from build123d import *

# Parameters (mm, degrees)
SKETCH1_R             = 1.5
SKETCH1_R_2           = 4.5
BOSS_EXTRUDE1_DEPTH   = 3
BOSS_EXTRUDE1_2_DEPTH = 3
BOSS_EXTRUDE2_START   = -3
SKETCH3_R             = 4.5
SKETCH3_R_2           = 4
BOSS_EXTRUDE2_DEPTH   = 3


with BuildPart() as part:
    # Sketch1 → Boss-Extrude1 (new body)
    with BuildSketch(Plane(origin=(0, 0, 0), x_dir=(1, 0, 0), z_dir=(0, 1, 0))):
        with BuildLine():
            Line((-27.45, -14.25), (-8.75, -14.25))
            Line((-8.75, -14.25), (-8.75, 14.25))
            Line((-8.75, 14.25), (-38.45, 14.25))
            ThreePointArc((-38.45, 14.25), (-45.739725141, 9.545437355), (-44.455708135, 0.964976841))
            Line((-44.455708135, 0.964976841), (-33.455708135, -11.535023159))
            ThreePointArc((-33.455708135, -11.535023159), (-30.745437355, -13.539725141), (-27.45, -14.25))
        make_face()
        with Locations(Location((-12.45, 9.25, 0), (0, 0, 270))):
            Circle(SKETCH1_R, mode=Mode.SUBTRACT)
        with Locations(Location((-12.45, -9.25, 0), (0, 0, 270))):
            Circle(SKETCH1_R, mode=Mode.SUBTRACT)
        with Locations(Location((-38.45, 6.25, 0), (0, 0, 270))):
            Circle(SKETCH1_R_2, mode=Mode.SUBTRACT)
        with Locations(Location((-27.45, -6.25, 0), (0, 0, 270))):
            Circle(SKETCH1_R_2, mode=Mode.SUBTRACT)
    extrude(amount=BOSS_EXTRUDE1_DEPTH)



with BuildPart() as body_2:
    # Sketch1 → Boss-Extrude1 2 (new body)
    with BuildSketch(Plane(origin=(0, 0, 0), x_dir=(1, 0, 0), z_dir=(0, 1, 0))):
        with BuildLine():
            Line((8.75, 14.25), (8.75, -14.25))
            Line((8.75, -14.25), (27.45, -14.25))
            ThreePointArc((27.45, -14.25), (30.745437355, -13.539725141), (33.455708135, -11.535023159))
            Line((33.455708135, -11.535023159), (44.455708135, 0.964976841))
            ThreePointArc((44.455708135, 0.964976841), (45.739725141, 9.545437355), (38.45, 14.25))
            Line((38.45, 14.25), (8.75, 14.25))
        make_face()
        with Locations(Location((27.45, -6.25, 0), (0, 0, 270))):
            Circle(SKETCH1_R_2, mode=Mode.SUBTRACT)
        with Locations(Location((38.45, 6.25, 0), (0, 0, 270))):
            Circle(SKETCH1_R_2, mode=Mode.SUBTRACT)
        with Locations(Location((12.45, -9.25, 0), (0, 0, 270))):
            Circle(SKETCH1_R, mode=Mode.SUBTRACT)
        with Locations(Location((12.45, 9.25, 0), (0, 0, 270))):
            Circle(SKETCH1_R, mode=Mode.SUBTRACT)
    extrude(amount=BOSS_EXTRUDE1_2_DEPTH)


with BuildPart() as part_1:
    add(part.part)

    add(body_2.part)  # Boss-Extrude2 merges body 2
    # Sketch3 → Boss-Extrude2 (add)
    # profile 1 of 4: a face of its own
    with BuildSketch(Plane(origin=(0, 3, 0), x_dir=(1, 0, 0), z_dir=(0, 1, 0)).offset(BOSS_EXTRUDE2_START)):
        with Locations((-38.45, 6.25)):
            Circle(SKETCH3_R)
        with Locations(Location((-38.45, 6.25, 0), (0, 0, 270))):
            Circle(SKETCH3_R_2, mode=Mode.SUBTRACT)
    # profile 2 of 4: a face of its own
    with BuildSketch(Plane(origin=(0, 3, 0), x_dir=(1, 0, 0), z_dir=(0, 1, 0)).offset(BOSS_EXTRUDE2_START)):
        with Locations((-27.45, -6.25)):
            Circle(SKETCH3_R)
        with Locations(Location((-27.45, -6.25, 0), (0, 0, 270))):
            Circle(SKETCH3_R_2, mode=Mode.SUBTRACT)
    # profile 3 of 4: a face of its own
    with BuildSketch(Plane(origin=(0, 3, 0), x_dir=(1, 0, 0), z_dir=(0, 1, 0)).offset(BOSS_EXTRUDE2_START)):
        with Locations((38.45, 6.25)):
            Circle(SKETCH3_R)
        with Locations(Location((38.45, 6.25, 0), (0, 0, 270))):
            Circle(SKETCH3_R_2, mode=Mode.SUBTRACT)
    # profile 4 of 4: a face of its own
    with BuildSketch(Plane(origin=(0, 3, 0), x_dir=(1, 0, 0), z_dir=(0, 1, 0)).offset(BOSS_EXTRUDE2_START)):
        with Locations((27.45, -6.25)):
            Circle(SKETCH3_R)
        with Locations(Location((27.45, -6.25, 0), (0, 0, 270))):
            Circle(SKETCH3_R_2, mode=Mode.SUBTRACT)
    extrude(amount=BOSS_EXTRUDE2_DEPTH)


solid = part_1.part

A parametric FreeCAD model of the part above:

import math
import FreeCAD as App
import Part
import Sketcher

V = App.Vector
Q = App.Units.Quantity

doc = App.newDocument("Part")
body = doc.addObject("PartDesign::Body", "Body")

# Sketch on XZ plane
sketch1 = doc.addObject("Sketcher::SketchObject", "Sketch")
body.addObject(sketch1)
sketch1.AttachmentSupport = (doc.XZ_Plane, [""])
sketch1.MapMode = "FlatFace"
sketch1.addGeometry(Part.LineSegment(V(-27.4, 14.2, 0), V(-8.8, 14.2, 0)), False)
sketch1.addGeometry(Part.LineSegment(V(-8.8, 14.2, 0), V(-8.8, -14.2, 0)), False)
sketch1.addGeometry(Part.LineSegment(V(-8.8, -14.2, 0), V(-38.5, -14.2, 0)), False)
sketch1.addGeometry(Part.ArcOfCircle(Part.Circle(V(-38.4, -6.2, 0), V(0, 0, 1), 8), math.radians(139), math.radians(270)), False)
sketch1.addGeometry(Part.LineSegment(V(-44.5, -1, 0), V(-33.5, 11.5, 0)), False)
sketch1.addGeometry(Part.ArcOfCircle(Part.Circle(V(-27.4, 6.2, 0), V(0, 0, 1), 8), math.radians(90), math.radians(139)), False)
sketch1.addGeometry(Part.Circle(V(-27.4, 6.2, 0), V(0, 0, 1), 4.5), False)
sketch1.addGeometry(Part.Circle(V(-12.4, 9.2, 0), V(0, 0, 1), 1.5), False)
sketch1.addGeometry(Part.Circle(V(-38.5, -6.2, 0), V(0, 0, 1), 4.5), False)
sketch1.addGeometry(Part.Circle(V(-12.4, -9.2, 0), V(0, 0, 1), 1.5), False)
sketch1.addConstraint(Sketcher.Constraint("Coincident", 0, 2, 1, 1))
sketch1.addConstraint(Sketcher.Constraint("Coincident", 1, 2, 2, 1))
sketch1.addConstraint(Sketcher.Constraint("Tangent", 2, 2, 3, 2))
sketch1.addConstraint(Sketcher.Constraint("Tangent", 3, 1, 4, 1))
sketch1.addConstraint(Sketcher.Constraint("Tangent", 4, 2, 5, 2))
sketch1.addConstraint(Sketcher.Constraint("Tangent", 5, 1, 0, 1))
sketch1.addConstraint(Sketcher.Constraint("Horizontal", 0))
sketch1.addConstraint(Sketcher.Constraint("Vertical", 1))
sketch1.addConstraint(Sketcher.Constraint("Horizontal", 2))
sketch1.addConstraint(Sketcher.Constraint("Coincident", 6, 3, 5, 3))
sketch1.addConstraint(Sketcher.Constraint("Coincident", 8, 3, 3, 3))
sketch1.addConstraint(Sketcher.Constraint("Equal", 3, 5))
sketch1.addConstraint(Sketcher.Constraint("Equal", 6, 8))
sketch1.addConstraint(Sketcher.Constraint("Equal", 7, 9))
sketch1.addConstraint(Sketcher.Constraint("Symmetric", 7, 3, 9, 3, -1))
sketch1.addConstraint(Sketcher.Constraint("Diameter", 6, Q("9 mm")))
sketch1.addConstraint(Sketcher.Constraint("Diameter", 7, Q("3 mm")))
sketch1.addConstraint(Sketcher.Constraint("Radius", 3, Q("8 mm")))
sketch1.addConstraint(Sketcher.Constraint("DistanceX", 0, 1, 0, 2, Q("18.7 mm")))
sketch1.addConstraint(Sketcher.Constraint("DistanceX", 2, 2, 2, 1, Q("29.7 mm")))
sketch1.addConstraint(Sketcher.Constraint("DistanceY", 1, 2, 1, 1, Q("28.5 mm")))
sketch1.addConstraint(Sketcher.Constraint("DistanceX", 5, 3, 7, 3, Q("15 mm")))
sketch1.addConstraint(Sketcher.Constraint("DistanceY", 5, 3, 7, 3, Q("3 mm")))
sketch1.addConstraint(Sketcher.Constraint("DistanceY", 9, 3, 3, 3, Q("3 mm")))
sketch1.addConstraint(Sketcher.Constraint("DistanceX", 3, 3, -1, 1, Q("38.45 mm")))
pad1 = doc.addObject("PartDesign::Pad", "Pad")
body.addObject(pad1)
pad1.Profile = sketch1
pad1.Length = 3
pad1.Reversed = True
body2 = doc.addObject("PartDesign::Body", "Body001")

# Sketch on XZ plane
sketch2 = doc.addObject("Sketcher::SketchObject", "Sketch001")
body2.addObject(sketch2)
sketch2.AttachmentSupport = (doc.getObject("XZ_Plane001"), [""])
sketch2.MapMode = "FlatFace"
sketch2.addGeometry(Part.LineSegment(V(8.8, -14.2, 0), V(8.8, 14.2, 0)), False)
sketch2.addGeometry(Part.LineSegment(V(8.8, 14.2, 0), V(27.4, 14.2, 0)), False)
sketch2.addGeometry(Part.ArcOfCircle(Part.Circle(V(27.4, 6.2, 0), V(0, 0, 1), 8), math.radians(41), math.radians(90)), False)
sketch2.addGeometry(Part.LineSegment(V(33.5, 11.5, 0), V(44.5, -1, 0)), False)
sketch2.addGeometry(Part.ArcOfCircle(Part.Circle(V(38.4, -6.2, 0), V(0, 0, 1), 8), math.radians(-90), math.radians(41)), False)
sketch2.addGeometry(Part.LineSegment(V(38.5, -14.2, 0), V(8.8, -14.2, 0)), False)
sketch2.addGeometry(Part.Circle(V(12.4, 9.2, 0), V(0, 0, 1), 1.5), False)
sketch2.addGeometry(Part.Circle(V(27.4, 6.2, 0), V(0, 0, 1), 4.5), False)
sketch2.addGeometry(Part.Circle(V(12.4, -9.2, 0), V(0, 0, 1), 1.5), False)
sketch2.addGeometry(Part.Circle(V(38.5, -6.2, 0), V(0, 0, 1), 4.5), False)
sketch2.addConstraint(Sketcher.Constraint("Coincident", 0, 2, 1, 1))
sketch2.addConstraint(Sketcher.Constraint("Tangent", 1, 2, 2, 2))
sketch2.addConstraint(Sketcher.Constraint("Tangent", 2, 1, 3, 1))
sketch2.addConstraint(Sketcher.Constraint("Tangent", 3, 2, 4, 2))
sketch2.addConstraint(Sketcher.Constraint("Tangent", 4, 1, 5, 1))
sketch2.addConstraint(Sketcher.Constraint("Coincident", 5, 2, 0, 1))
sketch2.addConstraint(Sketcher.Constraint("Vertical", 0))
sketch2.addConstraint(Sketcher.Constraint("Horizontal", 1))
sketch2.addConstraint(Sketcher.Constraint("Horizontal", 5))
sketch2.addConstraint(Sketcher.Constraint("Coincident", 7, 3, 2, 3))
sketch2.addConstraint(Sketcher.Constraint("Coincident", 9, 3, 4, 3))
sketch2.addConstraint(Sketcher.Constraint("Equal", 2, 4))
sketch2.addConstraint(Sketcher.Constraint("Equal", 6, 8))
sketch2.addConstraint(Sketcher.Constraint("Equal", 7, 9))
sketch2.addConstraint(Sketcher.Constraint("Symmetric", 6, 3, 8, 3, -1))
sketch2.addConstraint(Sketcher.Constraint("Diameter", 6, Q("3 mm")))
sketch2.addConstraint(Sketcher.Constraint("Diameter", 7, Q("9 mm")))
sketch2.addConstraint(Sketcher.Constraint("Radius", 2, Q("8 mm")))
sketch2.addConstraint(Sketcher.Constraint("DistanceX", 1, 1, 1, 2, Q("18.7 mm")))
sketch2.addConstraint(Sketcher.Constraint("DistanceX", 5, 2, 5, 1, Q("29.7 mm")))
sketch2.addConstraint(Sketcher.Constraint("DistanceY", 0, 1, 0, 2, Q("28.5 mm")))
sketch2.addConstraint(Sketcher.Constraint("DistanceX", 6, 3, 2, 3, Q("15 mm")))
sketch2.addConstraint(Sketcher.Constraint("DistanceY", 2, 3, 6, 3, Q("3 mm")))
sketch2.addConstraint(Sketcher.Constraint("DistanceY", 8, 3, 4, 3, Q("3 mm")))
sketch2.addConstraint(Sketcher.Constraint("DistanceX", -1, 1, 2, 3, Q("27.45 mm")))
pad2 = doc.addObject("PartDesign::Pad", "Pad001")
body2.addObject(pad2)
pad2.Profile = sketch2
pad2.Length = 3
pad2.Reversed = True
body.AllowCompound = True
doc.recompute()

boolean = doc.addObject("PartDesign::Boolean", "Boolean")
body.addObject(boolean)
boolean.Type = "Fuse"
boolean.addObjects([body2])

# Sketch on XZ plane
sketch3 = doc.addObject("Sketcher::SketchObject", "Sketch002")
body.addObject(sketch3)
sketch3.AttachmentSupport = (doc.XZ_Plane, [""])
sketch3.MapMode = "FlatFace"
sketch3.addGeometry(Part.Circle(V(-38.5, -6.2, 0), V(0, 0, 1), 4.5), False)
sketch3.addGeometry(Part.Circle(V(-38.5, -6.2, 0), V(0, 0, 1), 4), False)
sketch3.addGeometry(Part.Circle(V(-27.4, 6.2, 0), V(0, 0, 1), 4.5), False)
sketch3.addGeometry(Part.Circle(V(-27.4, 6.2, 0), V(0, 0, 1), 4), False)
sketch3.addGeometry(Part.Circle(V(38.5, -6.2, 0), V(0, 0, 1), 4.5), False)
sketch3.addGeometry(Part.Circle(V(38.5, -6.2, 0), V(0, 0, 1), 4), False)
sketch3.addGeometry(Part.Circle(V(27.4, 6.2, 0), V(0, 0, 1), 4.5), False)
sketch3.addGeometry(Part.Circle(V(27.4, 6.2, 0), V(0, 0, 1), 4), False)
sketch3.addConstraint(Sketcher.Constraint("Coincident", 1, 3, 0, 3))
sketch3.addConstraint(Sketcher.Constraint("Coincident", 3, 3, 2, 3))
sketch3.addConstraint(Sketcher.Constraint("Coincident", 5, 3, 4, 3))
sketch3.addConstraint(Sketcher.Constraint("Coincident", 7, 3, 6, 3))
sketch3.addConstraint(Sketcher.Constraint("Equal", 0, 2))
sketch3.addConstraint(Sketcher.Constraint("Equal", 1, 3))
sketch3.addConstraint(Sketcher.Constraint("Equal", 2, 4))
sketch3.addConstraint(Sketcher.Constraint("Equal", 3, 5))
sketch3.addConstraint(Sketcher.Constraint("Equal", 4, 6))
sketch3.addConstraint(Sketcher.Constraint("Equal", 5, 7))
sketch3.addConstraint(Sketcher.Constraint("Symmetric", 0, 3, 4, 3, -2))
sketch3.addConstraint(Sketcher.Constraint("Symmetric", 2, 3, 6, 3, -2))
sketch3.addConstraint(Sketcher.Constraint("Diameter", 0, Q("9 mm")))
sketch3.addConstraint(Sketcher.Constraint("Diameter", 1, Q("8 mm")))
sketch3.addConstraint(Sketcher.Constraint("DistanceX", 0, 3, 2, 3, Q("11 mm")))
sketch3.addConstraint(Sketcher.Constraint("DistanceY", 0, 3, 2, 3, Q("12.5 mm")))
sketch3.addConstraint(Sketcher.Constraint("DistanceX", 2, 3, 4, 3, Q("65.9 mm")))
sketch3.addConstraint(Sketcher.Constraint("DistanceY", 0, 3, -1, 1, Q("6.25 mm")))
pad3 = doc.addObject("PartDesign::Pad", "Pad002")
body.addObject(pad3)
pad3.Profile = sketch3
pad3.Length = 3
pad3.Reversed = True

doc.recompute()
